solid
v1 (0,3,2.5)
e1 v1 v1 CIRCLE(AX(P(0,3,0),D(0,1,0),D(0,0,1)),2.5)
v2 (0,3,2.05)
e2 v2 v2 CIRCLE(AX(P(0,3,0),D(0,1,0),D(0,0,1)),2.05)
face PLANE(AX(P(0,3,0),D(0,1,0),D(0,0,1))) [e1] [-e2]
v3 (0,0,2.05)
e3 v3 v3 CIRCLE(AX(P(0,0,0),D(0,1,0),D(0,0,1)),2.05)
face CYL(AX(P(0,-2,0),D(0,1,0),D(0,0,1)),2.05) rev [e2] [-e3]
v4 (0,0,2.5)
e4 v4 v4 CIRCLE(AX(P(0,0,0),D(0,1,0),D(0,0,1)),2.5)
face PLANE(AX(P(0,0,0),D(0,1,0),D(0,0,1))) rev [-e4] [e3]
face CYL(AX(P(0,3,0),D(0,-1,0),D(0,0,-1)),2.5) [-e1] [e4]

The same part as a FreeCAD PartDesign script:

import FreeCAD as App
import Part
import Sketcher
Q = App.Units.Quantity

doc = App.newDocument("Part")
body = doc.addObject("PartDesign::Body", "Body")

# Sketch on XZ plane
sketch1 = body.newObject("Sketcher::SketchObject", "Sketch")
sketch1.AttachmentSupport = (doc.getObject("XZ_Plane"), [""])
sketch1.MapMode = "FlatFace"
sketch1.addGeometry(Part.Circle(App.Vector(0, 0, 0), App.Vector(0, 0, 1), 2.5), False)
sketch1.addConstraint(Sketcher.Constraint("Coincident", 0, 3, -1, 1))
sketch1.addConstraint(Sketcher.Constraint("Diameter", 0, Q("5 mm")))
pad1 = body.newObject("PartDesign::Pad", "Pad")
pad1.Profile = sketch1
pad1.Length = 3
pad1.Reversed = True

# Sketch on XZ plane
sketch2 = body.newObject("Sketcher::SketchObject", "Sketch001")
sketch2.AttachmentSupport = (doc.getObject("XZ_Plane"), [""])
sketch2.MapMode = "FlatFace"
sketch2.AttachmentOffset = App.Placement(App.Vector(0, 0, -3), App.Rotation())
sketch2.addGeometry(Part.Circle(App.Vector(0, 0, 0), App.Vector(0, 0, 1), 2), False)
sketch2.addConstraint(Sketcher.Constraint("Coincident", 0, 3, -1, 1))
sketch2.addConstraint(Sketcher.Constraint("Diameter", 0, Q("4.1 mm")))
pocket1 = body.newObject("PartDesign::Pocket", "Pocket")
pocket1.Profile = sketch2
pocket1.Length = 5
pocket1.Reversed = True

doc.recompute()
